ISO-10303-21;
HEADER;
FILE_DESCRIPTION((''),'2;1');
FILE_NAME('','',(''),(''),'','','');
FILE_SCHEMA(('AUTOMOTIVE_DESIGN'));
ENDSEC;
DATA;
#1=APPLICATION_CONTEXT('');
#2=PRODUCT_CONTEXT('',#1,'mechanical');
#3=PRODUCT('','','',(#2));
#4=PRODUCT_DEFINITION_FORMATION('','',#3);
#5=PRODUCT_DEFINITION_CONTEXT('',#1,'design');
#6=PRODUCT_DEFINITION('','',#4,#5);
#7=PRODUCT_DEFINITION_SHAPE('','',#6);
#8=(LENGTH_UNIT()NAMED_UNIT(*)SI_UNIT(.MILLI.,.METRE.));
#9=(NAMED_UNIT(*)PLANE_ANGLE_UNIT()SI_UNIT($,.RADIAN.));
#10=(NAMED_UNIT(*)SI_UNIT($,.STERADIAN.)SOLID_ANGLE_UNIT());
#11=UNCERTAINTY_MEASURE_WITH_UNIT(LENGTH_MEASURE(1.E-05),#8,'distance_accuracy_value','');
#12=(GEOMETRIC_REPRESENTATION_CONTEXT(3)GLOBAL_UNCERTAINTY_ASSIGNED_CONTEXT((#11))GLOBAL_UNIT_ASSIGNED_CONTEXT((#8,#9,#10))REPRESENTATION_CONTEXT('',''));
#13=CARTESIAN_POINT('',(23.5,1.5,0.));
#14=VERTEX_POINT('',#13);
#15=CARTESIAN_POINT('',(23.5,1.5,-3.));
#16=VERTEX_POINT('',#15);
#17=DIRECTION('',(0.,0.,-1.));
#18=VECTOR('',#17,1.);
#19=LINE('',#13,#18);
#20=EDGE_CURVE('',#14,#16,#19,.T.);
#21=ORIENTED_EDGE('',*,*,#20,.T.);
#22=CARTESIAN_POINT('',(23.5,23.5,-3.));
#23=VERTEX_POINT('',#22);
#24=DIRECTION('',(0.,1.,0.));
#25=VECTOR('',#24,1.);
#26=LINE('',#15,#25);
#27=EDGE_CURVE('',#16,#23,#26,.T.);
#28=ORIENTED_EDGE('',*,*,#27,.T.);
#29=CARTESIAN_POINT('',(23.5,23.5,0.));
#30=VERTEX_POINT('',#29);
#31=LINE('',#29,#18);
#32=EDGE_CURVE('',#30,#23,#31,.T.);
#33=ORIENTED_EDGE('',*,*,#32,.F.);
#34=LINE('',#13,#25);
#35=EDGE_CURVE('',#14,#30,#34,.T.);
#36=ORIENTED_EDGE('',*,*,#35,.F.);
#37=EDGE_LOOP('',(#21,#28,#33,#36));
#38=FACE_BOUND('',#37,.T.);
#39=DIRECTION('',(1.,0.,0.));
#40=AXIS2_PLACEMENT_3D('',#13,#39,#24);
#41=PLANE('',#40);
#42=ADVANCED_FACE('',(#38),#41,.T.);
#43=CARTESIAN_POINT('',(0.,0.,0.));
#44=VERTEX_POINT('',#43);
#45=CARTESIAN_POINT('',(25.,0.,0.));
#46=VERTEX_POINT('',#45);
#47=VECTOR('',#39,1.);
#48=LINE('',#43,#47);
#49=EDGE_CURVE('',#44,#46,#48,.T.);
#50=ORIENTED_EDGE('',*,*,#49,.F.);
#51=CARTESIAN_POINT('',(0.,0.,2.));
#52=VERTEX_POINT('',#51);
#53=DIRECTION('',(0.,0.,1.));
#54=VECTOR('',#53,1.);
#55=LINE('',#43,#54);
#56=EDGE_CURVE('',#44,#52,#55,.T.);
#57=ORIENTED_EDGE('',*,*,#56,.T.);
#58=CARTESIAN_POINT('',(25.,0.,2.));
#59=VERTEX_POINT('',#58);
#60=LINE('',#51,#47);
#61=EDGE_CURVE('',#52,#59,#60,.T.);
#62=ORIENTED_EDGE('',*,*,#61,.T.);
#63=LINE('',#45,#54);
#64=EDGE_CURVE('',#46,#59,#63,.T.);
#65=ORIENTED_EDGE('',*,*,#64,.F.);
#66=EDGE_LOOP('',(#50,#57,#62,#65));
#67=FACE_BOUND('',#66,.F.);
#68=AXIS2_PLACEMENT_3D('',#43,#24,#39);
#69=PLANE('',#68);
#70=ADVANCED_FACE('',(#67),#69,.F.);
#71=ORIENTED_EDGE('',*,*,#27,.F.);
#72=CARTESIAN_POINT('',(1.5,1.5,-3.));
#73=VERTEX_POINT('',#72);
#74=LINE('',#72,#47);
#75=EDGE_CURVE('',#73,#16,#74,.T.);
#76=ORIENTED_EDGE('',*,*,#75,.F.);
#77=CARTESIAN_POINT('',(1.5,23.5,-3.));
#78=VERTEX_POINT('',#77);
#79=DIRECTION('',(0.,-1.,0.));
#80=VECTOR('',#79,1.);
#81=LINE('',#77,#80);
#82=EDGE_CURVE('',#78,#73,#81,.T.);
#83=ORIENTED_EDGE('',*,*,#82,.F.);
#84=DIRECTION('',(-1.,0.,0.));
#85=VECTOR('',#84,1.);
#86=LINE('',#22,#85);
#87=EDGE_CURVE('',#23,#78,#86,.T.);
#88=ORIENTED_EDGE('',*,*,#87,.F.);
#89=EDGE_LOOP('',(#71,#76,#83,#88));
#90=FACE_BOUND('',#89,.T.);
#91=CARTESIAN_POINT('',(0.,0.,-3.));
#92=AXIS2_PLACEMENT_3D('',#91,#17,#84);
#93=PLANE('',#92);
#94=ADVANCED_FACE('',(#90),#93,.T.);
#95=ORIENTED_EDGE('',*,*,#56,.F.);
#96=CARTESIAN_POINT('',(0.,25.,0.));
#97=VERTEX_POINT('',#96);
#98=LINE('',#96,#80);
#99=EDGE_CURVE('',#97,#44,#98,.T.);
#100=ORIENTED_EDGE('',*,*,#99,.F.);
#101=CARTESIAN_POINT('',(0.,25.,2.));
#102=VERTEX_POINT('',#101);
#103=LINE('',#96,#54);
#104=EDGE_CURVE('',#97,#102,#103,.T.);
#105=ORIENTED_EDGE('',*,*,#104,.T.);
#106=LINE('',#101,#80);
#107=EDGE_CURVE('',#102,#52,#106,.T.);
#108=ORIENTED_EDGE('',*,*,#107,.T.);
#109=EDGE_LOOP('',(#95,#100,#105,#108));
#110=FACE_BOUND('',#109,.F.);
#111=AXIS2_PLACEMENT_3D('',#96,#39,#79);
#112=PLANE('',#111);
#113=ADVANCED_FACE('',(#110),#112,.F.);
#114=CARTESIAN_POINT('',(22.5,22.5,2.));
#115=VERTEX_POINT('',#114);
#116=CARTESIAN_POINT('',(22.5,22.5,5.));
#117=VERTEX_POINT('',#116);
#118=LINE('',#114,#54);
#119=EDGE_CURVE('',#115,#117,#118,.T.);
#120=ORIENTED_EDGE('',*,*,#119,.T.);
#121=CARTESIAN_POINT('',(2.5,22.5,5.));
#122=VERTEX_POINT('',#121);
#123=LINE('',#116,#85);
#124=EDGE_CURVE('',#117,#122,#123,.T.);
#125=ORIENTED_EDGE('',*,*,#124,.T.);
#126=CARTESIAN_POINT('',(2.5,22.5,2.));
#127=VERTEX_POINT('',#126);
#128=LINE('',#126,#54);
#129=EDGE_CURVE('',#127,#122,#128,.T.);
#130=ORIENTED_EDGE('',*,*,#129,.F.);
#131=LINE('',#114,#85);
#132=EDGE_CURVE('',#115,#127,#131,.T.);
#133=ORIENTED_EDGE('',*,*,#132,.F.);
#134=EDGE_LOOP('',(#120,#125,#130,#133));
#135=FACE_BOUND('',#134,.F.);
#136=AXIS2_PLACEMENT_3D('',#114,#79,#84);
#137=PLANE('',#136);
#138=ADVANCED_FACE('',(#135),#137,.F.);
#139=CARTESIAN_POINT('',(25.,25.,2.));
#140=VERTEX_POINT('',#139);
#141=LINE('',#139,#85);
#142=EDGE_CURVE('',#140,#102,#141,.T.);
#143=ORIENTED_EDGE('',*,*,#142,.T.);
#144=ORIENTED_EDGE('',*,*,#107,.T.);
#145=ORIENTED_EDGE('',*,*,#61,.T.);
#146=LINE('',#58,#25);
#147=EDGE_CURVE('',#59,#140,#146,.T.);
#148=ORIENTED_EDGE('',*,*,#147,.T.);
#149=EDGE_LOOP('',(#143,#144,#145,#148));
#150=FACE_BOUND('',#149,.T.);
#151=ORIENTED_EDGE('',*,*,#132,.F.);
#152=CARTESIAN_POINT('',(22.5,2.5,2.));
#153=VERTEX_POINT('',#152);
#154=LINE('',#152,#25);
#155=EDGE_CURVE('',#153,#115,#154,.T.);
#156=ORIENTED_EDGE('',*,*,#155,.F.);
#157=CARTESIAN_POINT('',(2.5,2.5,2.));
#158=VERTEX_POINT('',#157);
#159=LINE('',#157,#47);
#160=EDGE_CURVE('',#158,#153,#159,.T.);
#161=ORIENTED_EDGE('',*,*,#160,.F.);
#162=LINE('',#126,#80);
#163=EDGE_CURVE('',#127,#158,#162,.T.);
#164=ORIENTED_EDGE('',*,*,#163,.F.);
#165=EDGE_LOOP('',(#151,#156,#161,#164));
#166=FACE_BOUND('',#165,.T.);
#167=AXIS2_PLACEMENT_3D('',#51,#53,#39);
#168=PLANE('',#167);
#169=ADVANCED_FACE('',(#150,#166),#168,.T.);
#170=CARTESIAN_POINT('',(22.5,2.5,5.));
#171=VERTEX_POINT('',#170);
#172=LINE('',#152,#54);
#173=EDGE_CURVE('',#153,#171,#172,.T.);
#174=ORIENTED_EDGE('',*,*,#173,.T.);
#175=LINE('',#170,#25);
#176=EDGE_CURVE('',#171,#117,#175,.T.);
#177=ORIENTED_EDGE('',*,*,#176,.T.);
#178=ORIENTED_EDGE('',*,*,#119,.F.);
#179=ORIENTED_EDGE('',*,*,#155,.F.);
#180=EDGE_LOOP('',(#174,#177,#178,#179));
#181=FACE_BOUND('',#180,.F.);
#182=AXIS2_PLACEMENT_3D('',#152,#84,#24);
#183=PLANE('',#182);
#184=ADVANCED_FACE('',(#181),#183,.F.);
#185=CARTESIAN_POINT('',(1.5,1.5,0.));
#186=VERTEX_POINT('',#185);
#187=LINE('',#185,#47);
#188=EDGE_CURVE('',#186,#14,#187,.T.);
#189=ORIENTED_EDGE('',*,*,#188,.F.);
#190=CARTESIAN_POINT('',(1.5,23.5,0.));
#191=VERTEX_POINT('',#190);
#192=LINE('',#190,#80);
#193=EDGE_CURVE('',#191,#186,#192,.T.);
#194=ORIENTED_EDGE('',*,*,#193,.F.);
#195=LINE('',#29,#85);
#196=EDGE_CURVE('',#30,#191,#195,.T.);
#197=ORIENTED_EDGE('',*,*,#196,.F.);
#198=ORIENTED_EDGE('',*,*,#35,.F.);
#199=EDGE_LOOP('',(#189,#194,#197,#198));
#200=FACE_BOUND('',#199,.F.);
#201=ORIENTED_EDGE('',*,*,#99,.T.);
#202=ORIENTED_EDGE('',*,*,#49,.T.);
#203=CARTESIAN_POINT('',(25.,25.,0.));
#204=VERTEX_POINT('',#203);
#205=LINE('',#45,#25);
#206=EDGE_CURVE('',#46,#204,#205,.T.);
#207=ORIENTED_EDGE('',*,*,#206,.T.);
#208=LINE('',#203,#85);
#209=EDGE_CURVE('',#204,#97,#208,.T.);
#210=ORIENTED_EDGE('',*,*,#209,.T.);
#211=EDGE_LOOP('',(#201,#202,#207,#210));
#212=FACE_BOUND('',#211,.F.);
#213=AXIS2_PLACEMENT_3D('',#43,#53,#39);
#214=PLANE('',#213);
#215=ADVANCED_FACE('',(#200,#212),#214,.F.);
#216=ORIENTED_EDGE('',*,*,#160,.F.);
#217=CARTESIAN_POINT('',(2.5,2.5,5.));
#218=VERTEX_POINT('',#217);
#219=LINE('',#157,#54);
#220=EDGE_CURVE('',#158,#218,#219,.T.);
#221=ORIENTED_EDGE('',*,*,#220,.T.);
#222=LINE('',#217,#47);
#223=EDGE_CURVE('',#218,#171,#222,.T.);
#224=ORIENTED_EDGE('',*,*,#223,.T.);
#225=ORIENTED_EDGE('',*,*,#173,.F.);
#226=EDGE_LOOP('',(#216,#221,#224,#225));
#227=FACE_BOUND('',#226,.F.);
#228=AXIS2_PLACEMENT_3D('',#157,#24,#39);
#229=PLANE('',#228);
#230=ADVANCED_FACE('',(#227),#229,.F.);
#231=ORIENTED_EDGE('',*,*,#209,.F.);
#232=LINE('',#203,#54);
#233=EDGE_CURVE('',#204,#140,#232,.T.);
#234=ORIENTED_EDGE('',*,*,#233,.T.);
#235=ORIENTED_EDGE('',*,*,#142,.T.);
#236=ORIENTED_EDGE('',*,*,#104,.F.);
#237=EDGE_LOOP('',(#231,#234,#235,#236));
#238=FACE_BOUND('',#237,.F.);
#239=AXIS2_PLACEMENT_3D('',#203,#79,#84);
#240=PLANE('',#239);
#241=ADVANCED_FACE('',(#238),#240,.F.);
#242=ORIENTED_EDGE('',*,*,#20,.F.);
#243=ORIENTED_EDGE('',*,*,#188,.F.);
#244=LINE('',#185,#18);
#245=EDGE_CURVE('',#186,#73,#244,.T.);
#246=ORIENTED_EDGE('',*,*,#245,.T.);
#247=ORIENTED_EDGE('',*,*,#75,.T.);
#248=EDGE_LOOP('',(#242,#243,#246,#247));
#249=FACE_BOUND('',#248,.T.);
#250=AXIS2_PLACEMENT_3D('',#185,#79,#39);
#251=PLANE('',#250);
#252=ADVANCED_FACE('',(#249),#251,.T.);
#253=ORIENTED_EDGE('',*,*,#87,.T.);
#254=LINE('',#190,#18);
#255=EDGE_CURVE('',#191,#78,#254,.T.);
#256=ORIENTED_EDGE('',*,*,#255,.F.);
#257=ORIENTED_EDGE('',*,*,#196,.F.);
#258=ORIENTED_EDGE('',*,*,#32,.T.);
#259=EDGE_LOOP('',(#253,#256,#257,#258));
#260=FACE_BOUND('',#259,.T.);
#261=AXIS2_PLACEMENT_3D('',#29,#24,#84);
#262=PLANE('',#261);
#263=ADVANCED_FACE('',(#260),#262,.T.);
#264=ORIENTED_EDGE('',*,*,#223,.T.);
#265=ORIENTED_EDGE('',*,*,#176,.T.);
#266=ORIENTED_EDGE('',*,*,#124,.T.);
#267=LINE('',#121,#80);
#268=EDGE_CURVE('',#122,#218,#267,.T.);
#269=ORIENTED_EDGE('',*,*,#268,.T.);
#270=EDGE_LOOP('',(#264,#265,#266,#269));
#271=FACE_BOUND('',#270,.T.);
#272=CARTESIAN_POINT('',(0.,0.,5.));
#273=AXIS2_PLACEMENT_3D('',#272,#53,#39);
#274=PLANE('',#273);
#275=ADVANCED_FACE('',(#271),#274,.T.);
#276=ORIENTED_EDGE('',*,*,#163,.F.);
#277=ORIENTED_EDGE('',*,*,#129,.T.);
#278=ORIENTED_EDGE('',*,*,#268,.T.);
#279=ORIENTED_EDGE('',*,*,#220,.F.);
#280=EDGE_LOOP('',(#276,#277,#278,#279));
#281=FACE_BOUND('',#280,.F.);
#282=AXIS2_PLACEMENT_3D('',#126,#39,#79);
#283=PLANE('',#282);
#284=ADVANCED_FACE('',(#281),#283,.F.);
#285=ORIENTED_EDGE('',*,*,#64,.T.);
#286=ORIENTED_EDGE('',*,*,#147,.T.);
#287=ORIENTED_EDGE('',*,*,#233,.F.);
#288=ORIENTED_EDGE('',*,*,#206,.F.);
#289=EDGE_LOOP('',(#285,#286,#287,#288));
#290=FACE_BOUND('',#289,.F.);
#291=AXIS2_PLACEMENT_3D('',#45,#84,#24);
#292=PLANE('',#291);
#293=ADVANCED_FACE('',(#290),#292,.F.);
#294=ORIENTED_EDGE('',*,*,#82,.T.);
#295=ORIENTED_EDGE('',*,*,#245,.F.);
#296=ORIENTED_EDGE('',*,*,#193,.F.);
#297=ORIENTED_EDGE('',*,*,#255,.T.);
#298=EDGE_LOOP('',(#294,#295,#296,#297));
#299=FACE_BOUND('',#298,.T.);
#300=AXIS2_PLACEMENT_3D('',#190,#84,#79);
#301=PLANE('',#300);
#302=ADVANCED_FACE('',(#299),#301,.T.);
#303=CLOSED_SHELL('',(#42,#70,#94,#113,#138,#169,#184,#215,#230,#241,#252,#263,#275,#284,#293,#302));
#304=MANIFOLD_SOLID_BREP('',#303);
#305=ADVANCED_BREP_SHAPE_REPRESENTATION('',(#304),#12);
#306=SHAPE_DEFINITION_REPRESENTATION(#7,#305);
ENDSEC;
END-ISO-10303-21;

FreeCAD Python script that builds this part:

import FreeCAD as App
import Part
import Sketcher
Q = App.Units.Quantity


def add_polygon(sketch, points):
    """Adds a closed chain of lines whose ends are joined by coincident constraints."""
    first, n = sketch.GeometryCount, len(points)
    for a, b in zip(points, points[1:] + points[:1]):
        sketch.addGeometry(Part.LineSegment(App.Vector(*a, 0), App.Vector(*b, 0)), False)
    for i in range(n):
        sketch.addConstraint(Sketcher.Constraint("Coincident", first + i, 2, first + (i + 1) % n, 1))

doc = App.newDocument("Part")
body = doc.addObject("PartDesign::Body", "Body")

# Sketch on XY plane
sketch1 = body.newObject("Sketcher::SketchObject", "Sketch")
sketch1.AttachmentSupport = (doc.getObject("XY_Plane"), [""])
sketch1.MapMode = "FlatFace"
add_polygon(sketch1, [(0, 25), (0, 0), (25, 0), (25, 25)])  # lines 0-3
sketch1.addConstraint(Sketcher.Constraint("Vertical", 0))
sketch1.addConstraint(Sketcher.Constraint("Horizontal", 1))
sketch1.addConstraint(Sketcher.Constraint("Vertical", 2))
sketch1.addConstraint(Sketcher.Constraint("Horizontal", 3))
sketch1.addConstraint(Sketcher.Constraint("Coincident", 0, 2, -1, 1))
sketch1.addConstraint(Sketcher.Constraint("Equal", 3, 0))
sketch1.addConstraint(Sketcher.Constraint("DistanceX", 1, 1, 1, 2, Q("25 mm")))
pad1 = body.newObject("PartDesign::Pad", "Pad")
pad1.Profile = sketch1
pad1.Length = 2

# Sketch on XY plane
sketch2 = body.newObject("Sketcher::SketchObject", "Sketch001")
sketch2.AttachmentSupport = (doc.getObject("XY_Plane"), [""])
sketch2.MapMode = "FlatFace"
sketch2.AttachmentOffset = App.Placement(App.Vector(0, 0, 2), App.Rotation())
add_polygon(sketch2, [(2, 22), (2, 2), (22, 2), (22, 22)])  # lines 0-3
sketch2.addConstraint(Sketcher.Constraint("Vertical", 0))
sketch2.addConstraint(Sketcher.Constraint("Horizontal", 1))
sketch2.addConstraint(Sketcher.Constraint("Vertical", 2))
sketch2.addConstraint(Sketcher.Constraint("Horizontal", 3))
sketch2.addConstraint(Sketcher.Constraint("Equal", 3, 0))
sketch2.addConstraint(Sketcher.Constraint("DistanceX", 1, 1, 1, 2, Q("20 mm")))
sketch2.addConstraint(Sketcher.Constraint("DistanceX", -1, 1, 0, 2, Q("2.5 mm")))
sketch2.addConstraint(Sketcher.Constraint("DistanceY", -1, 1, 0, 2, Q("2.5 mm")))
pad2 = body.newObject("PartDesign::Pad", "Pad001")
pad2.Profile = sketch2
pad2.Length = 3

# Sketch on XY plane
sketch3 = body.newObject("Sketcher::SketchObject", "Sketch002")
sketch3.AttachmentSupport = (doc.getObject("XY_Plane"), [""])
sketch3.MapMode = "FlatFace"
add_polygon(sketch3, [(2, 24), (24, 24), (24, 2), (2, 2)])  # lines 0-3
sketch3.addConstraint(Sketcher.Constraint("Horizontal", 0))
sketch3.addConstraint(Sketcher.Constraint("Vertical", 1))
sketch3.addConstraint(Sketcher.Constraint("Horizontal", 2))
sketch3.addConstraint(Sketcher.Constraint("Vertical", 3))
sketch3.addConstraint(Sketcher.Constraint("Equal", 2, 1))
sketch3.addConstraint(Sketcher.Constraint("DistanceX", 0, 1, 0, 2, Q("22 mm")))
sketch3.addConstraint(Sketcher.Constraint("DistanceY", -1, 1, 1, 2, Q("1.5 mm")))
sketch3.addConstraint(Sketcher.Constraint("DistanceX", -1, 1, 2, 2, Q("1.5 mm")))
pad3 = body.newObject("PartDesign::Pad", "Pad002")
pad3.Profile = sketch3
pad3.Length = 3
pad3.Reversed = True

doc.recompute()
